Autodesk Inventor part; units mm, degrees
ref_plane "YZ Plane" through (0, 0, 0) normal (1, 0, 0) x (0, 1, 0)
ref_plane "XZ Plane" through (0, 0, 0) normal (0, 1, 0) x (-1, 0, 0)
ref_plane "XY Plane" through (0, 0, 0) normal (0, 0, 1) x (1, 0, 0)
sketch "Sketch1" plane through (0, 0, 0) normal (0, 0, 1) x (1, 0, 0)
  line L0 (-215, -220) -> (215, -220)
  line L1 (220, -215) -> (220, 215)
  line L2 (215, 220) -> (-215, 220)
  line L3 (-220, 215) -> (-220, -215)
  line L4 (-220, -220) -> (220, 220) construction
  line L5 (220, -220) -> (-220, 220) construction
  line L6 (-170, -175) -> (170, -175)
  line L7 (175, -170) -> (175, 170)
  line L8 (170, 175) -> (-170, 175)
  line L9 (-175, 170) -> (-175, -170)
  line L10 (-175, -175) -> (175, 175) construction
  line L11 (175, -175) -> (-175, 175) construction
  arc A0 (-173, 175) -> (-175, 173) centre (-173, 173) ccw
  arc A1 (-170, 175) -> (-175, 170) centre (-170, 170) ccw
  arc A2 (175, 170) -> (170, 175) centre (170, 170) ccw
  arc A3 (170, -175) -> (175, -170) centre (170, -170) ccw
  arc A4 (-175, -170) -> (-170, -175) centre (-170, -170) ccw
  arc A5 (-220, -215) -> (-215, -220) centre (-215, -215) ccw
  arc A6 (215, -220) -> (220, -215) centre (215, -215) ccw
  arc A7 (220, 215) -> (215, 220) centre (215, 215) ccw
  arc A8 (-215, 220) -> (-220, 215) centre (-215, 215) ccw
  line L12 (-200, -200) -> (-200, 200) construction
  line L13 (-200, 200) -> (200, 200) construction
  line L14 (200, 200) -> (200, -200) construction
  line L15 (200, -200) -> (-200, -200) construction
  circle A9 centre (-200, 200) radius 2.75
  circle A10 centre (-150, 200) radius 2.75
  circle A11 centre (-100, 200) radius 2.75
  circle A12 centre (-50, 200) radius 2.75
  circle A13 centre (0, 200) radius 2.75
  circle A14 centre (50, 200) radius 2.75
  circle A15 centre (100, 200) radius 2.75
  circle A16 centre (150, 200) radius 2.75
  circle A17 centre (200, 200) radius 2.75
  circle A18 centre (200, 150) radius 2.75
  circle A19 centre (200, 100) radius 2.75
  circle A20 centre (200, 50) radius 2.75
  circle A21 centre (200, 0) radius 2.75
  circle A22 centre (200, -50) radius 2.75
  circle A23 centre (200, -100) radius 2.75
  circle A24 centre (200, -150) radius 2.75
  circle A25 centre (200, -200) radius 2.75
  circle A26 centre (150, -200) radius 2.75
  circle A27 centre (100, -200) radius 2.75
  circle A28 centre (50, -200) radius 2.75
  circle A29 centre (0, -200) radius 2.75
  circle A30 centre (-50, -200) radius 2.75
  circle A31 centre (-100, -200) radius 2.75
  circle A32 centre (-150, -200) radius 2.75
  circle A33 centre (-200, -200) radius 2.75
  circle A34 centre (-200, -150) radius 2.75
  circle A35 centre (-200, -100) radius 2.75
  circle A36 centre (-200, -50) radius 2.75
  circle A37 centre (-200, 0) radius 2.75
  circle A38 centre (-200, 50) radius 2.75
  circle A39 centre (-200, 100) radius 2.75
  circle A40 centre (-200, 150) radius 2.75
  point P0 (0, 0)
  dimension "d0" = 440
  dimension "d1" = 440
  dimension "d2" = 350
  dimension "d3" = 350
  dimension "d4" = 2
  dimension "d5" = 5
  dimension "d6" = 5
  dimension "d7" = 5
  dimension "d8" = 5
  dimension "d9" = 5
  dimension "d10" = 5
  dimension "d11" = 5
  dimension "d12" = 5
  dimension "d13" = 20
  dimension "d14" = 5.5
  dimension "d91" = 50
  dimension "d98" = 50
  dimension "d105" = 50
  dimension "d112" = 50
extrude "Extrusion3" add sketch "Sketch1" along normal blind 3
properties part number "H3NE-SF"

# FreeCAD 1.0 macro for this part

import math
import FreeCAD as App
import Part
import Sketcher

V = App.Vector
Q = App.Units.Quantity

doc = App.newDocument("Part")
params = doc.addObject("Spreadsheet::Sheet", "Params")
for row, (alias, value) in enumerate([
    ("sketch1_radius", "5 mm"),
    ("sketch1_diameter", "5.5 mm"),
    ("pad1_length", "3 mm"),
], start=1):
    params.set(f"A{row}", alias)
    params.set(f"B{row}", "=" + value)
    params.setAlias(f"B{row}", alias)

body = doc.addObject("PartDesign::Body", "Body")

sketch1 = body.newObject("Sketcher::SketchObject", "Sketch")
sketch1.AttachmentSupport = (doc.getObject("XY_Plane"), [""])
sketch1.MapMode = "FlatFace"
sketch1.addGeometry(Part.ArcOfCircle(Part.Circle(V(-215, -215, 0), V(0, 0, 1), 5), math.radians(180), math.radians(270)), False)
sketch1.addGeometry(Part.LineSegment(V(-215, -220, 0), V(215, -220, 0)), False)
sketch1.addGeometry(Part.ArcOfCircle(Part.Circle(V(215, -215, 0), V(0, 0, 1), 5), math.radians(-90), math.radians(0)), False)
sketch1.addGeometry(Part.LineSegment(V(220, -215, 0), V(220, 215, 0)), False)
sketch1.addGeometry(Part.ArcOfCircle(Part.Circle(V(215, 215, 0), V(0, 0, 1), 5), math.radians(0), math.radians(90)), False)
sketch1.addGeometry(Part.LineSegment(V(215, 220, 0), V(-215, 220, 0)), False)
sketch1.addGeometry(Part.ArcOfCircle(Part.Circle(V(-215, 215, 0), V(0, 0, 1), 5), math.radians(90), math.radians(180)), False)
sketch1.addGeometry(Part.LineSegment(V(-220, 215, 0), V(-220, -215, 0)), False)
sketch1.addGeometry(Part.Circle(V(-200, -200, 0), V(0, 0, 1), 2.75), False)
sketch1.addGeometry(Part.Circle(V(-150, -200, 0), V(0, 0, 1), 2.75), False)
sketch1.addGeometry(Part.Circle(V(-200, -150, 0), V(0, 0, 1), 2.75), False)
sketch1.addGeometry(Part.Circle(V(-100, -200, 0), V(0, 0, 1), 2.75), False)
sketch1.addGeometry(Part.Circle(V(-50, -200, 0), V(0, 0, 1), 2.75), False)
sketch1.addGeometry(Part.Circle(V(-200, -100, 0), V(0, 0, 1), 2.75), False)
sketch1.addGeometry(Part.Circle(V(-200, -50, 0), V(0, 0, 1), 2.75), False)
sketch1.addGeometry(Part.Circle(V(0, -200, 0), V(0, 0, 1), 2.75), False)
sketch1.addGeometry(Part.Circle(V(50, -200, 0), V(0, 0, 1), 2.75), False)
sketch1.addGeometry(Part.Circle(V(100, -200, 0), V(0, 0, 1), 2.75), False)
sketch1.addGeometry(Part.Circle(V(150, -200, 0), V(0, 0, 1), 2.75), False)
sketch1.addGeometry(Part.Circle(V(200, -200, 0), V(0, 0, 1), 2.75), False)
sketch1.addGeometry(Part.Circle(V(200, -150, 0), V(0, 0, 1), 2.75), False)
sketch1.addGeometry(Part.Circle(V(200, -100, 0), V(0, 0, 1), 2.75), False)
sketch1.addGeometry(Part.Circle(V(200, -50, 0), V(0, 0, 1), 2.75), False)
sketch1.addGeometry(Part.Circle(V(-200, 0, 0), V(0, 0, 1), 2.75), False)
sketch1.addGeometry(Part.Circle(V(-200, 50, 0), V(0, 0, 1), 2.75), False)
sketch1.addGeometry(Part.Circle(V(-200, 100, 0), V(0, 0, 1), 2.75), False)
sketch1.addGeometry(Part.Circle(V(-200, 150, 0), V(0, 0, 1), 2.75), False)
sketch1.addGeometry(Part.Circle(V(-200, 200, 0), V(0, 0, 1), 2.75), False)
sketch1.addGeometry(Part.Circle(V(-150, 200, 0), V(0, 0, 1), 2.75), False)
sketch1.addGeometry(Part.Circle(V(-100, 200, 0), V(0, 0, 1), 2.75), False)
sketch1.addGeometry(Part.Circle(V(-50, 200, 0), V(0, 0, 1), 2.75), False)
sketch1.addGeometry(Part.LineSegment(V(170, -175, 0), V(-170, -175, 0)), False)
sketch1.addGeometry(Part.ArcOfCircle(Part.Circle(V(-170, -170, 0), V(0, 0, 1), 5), math.radians(180), math.radians(270)), False)
sketch1.addGeometry(Part.LineSegment(V(-175, -170, 0), V(-175, 170, 0)), False)
sketch1.addGeometry(Part.ArcOfCircle(Part.Circle(V(-170, 170, 0), V(0, 0, 1), 5), math.radians(90), math.radians(180)), False)
sketch1.addGeometry(Part.LineSegment(V(-170, 175, 0), V(170, 175, 0)), False)
sketch1.addGeometry(Part.ArcOfCircle(Part.Circle(V(170, 170, 0), V(0, 0, 1), 5), math.radians(0), math.radians(90)), False)
sketch1.addGeometry(Part.LineSegment(V(175, 170, 0), V(175, -170, 0)), False)
sketch1.addGeometry(Part.ArcOfCircle(Part.Circle(V(170, -170, 0), V(0, 0, 1), 5), math.radians(-90), math.radians(0)), False)
sketch1.addGeometry(Part.Circle(V(200, 0, 0), V(0, 0, 1), 2.75), False)
sketch1.addGeometry(Part.Circle(V(200, 50, 0), V(0, 0, 1), 2.75), False)
sketch1.addGeometry(Part.Circle(V(200, 100, 0), V(0, 0, 1), 2.75), False)
sketch1.addGeometry(Part.Circle(V(0, 200, 0), V(0, 0, 1), 2.75), False)
sketch1.addGeometry(Part.Circle(V(50, 200, 0), V(0, 0, 1), 2.75), False)
sketch1.addGeometry(Part.Circle(V(100, 200, 0), V(0, 0, 1), 2.75), False)
sketch1.addGeometry(Part.Circle(V(200, 150, 0), V(0, 0, 1), 2.75), False)
sketch1.addGeometry(Part.Circle(V(150, 200, 0), V(0, 0, 1), 2.75), False)
sketch1.addGeometry(Part.Circle(V(200, 200, 0), V(0, 0, 1), 2.75), False)
sketch1.addConstraint(Sketcher.Constraint("Tangent", 0, 2, 1, 1))
sketch1.addConstraint(Sketcher.Constraint("Tangent", 1, 2, 2, 1))
sketch1.addConstraint(Sketcher.Constraint("Tangent", 2, 2, 3, 1))
sketch1.addConstraint(Sketcher.Constraint("Tangent", 3, 2, 4, 1))
sketch1.addConstraint(Sketcher.Constraint("Tangent", 4, 2, 5, 1))
sketch1.addConstraint(Sketcher.Constraint("Tangent", 5, 2, 6, 1))
sketch1.addConstraint(Sketcher.Constraint("Tangent", 6, 2, 7, 1))
sketch1.addConstraint(Sketcher.Constraint("Tangent", 7, 2, 0, 1))
sketch1.addConstraint(Sketcher.Constraint("Tangent", 31, 2, 32, 2))
sketch1.addConstraint(Sketcher.Constraint("Tangent", 32, 1, 33, 1))
sketch1.addConstraint(Sketcher.Constraint("Tangent", 33, 2, 34, 2))
sketch1.addConstraint(Sketcher.Constraint("Tangent", 34, 1, 35, 1))
sketch1.addConstraint(Sketcher.Constraint("Tangent", 35, 2, 36, 2))
sketch1.addConstraint(Sketcher.Constraint("Tangent", 36, 1, 37, 1))
sketch1.addConstraint(Sketcher.Constraint("Tangent", 37, 2, 38, 2))
sketch1.addConstraint(Sketcher.Constraint("Tangent", 38, 1, 31, 1))
sketch1.addConstraint(Sketcher.Constraint("Horizontal", 1))
sketch1.addConstraint(Sketcher.Constraint("Vertical", 3))
sketch1.addConstraint(Sketcher.Constraint("Horizontal", 5))
sketch1.addConstraint(Sketcher.Constraint("Vertical", 7))
sketch1.addConstraint(Sketcher.Constraint("Horizontal", 31))
sketch1.addConstraint(Sketcher.Constraint("Vertical", 33))
sketch1.addConstraint(Sketcher.Constraint("Horizontal", 35))
sketch1.addConstraint(Sketcher.Constraint("Vertical", 37))
sketch1.addConstraint(Sketcher.Constraint("Equal", 0, 2))
sketch1.addConstraint(Sketcher.Constraint("Equal", 2, 4))
sketch1.addConstraint(Sketcher.Constraint("Equal", 4, 6))
sketch1.addConstraint(Sketcher.Constraint("Equal", 8, 9))
sketch1.addConstraint(Sketcher.Constraint("Equal", 9, 10))
sketch1.addConstraint(Sketcher.Constraint("Equal", 10, 11))
sketch1.addConstraint(Sketcher.Constraint("Equal", 11, 12))
sketch1.addConstraint(Sketcher.Constraint("Equal", 12, 13))
sketch1.addConstraint(Sketcher.Constraint("Equal", 13, 14))
sketch1.addConstraint(Sketcher.Constraint("Equal", 14, 15))
sketch1.addConstraint(Sketcher.Constraint("Equal", 15, 16))
sketch1.addConstraint(Sketcher.Constraint("Equal", 16, 17))
sketch1.addConstraint(Sketcher.Constraint("Equal", 17, 18))
sketch1.addConstraint(Sketcher.Constraint("Equal", 18, 19))
sketch1.addConstraint(Sketcher.Constraint("Equal", 19, 20))
sketch1.addConstraint(Sketcher.Constraint("Equal", 20, 21))
sketch1.addConstraint(Sketcher.Constraint("Equal", 21, 22))
sketch1.addConstraint(Sketcher.Constraint("Equal", 22, 23))
sketch1.addConstraint(Sketcher.Constraint("Equal", 23, 24))
sketch1.addConstraint(Sketcher.Constraint("Equal", 24, 25))
sketch1.addConstraint(Sketcher.Constraint("Equal", 25, 26))
sketch1.addConstraint(Sketcher.Constraint("Equal", 26, 27))
sketch1.addConstraint(Sketcher.Constraint("Equal", 27, 28))
sketch1.addConstraint(Sketcher.Constraint("Equal", 28, 29))
sketch1.addConstraint(Sketcher.Constraint("Equal", 29, 30))
sketch1.addConstraint(Sketcher.Constraint("Equal", 6, 32))
sketch1.addConstraint(Sketcher.Constraint("Equal", 32, 34))
sketch1.addConstraint(Sketcher.Constraint("Equal", 34, 36))
sketch1.addConstraint(Sketcher.Constraint("Equal", 36, 38))
sketch1.addConstraint(Sketcher.Constraint("Equal", 30, 39))
sketch1.addConstraint(Sketcher.Constraint("Equal", 39, 40))
sketch1.addConstraint(Sketcher.Constraint("Equal", 40, 41))
sketch1.addConstraint(Sketcher.Constraint("Equal", 41, 42))
sketch1.addConstraint(Sketcher.Constraint("Equal", 42, 43))
sketch1.addConstraint(Sketcher.Constraint("Equal", 43, 44))
sketch1.addConstraint(Sketcher.Constraint("Equal", 44, 45))
sketch1.addConstraint(Sketcher.Constraint("Equal", 45, 46))
sketch1.addConstraint(Sketcher.Constraint("Equal", 46, 47))
sketch1.addConstraint(Sketcher.Constraint("Symmetric", 0, 3, 4, 3, -1, 1))
sketch1.addConstraint(Sketcher.Constraint("Symmetric", 22, 3, 24, 3, -1, 1))
sketch1.addConstraint(Sketcher.Constraint("Symmetric", 21, 3, 25, 3, -1, 1))
sketch1.addConstraint(Sketcher.Constraint("Symmetric", 20, 3, 26, 3, -1, 1))
sketch1.addConstraint(Sketcher.Constraint("Symmetric", 19, 3, 27, 3, -1, 1))
sketch1.addConstraint(Sketcher.Constraint("Symmetric", 18, 3, 28, 3, -1, 1))
sketch1.addConstraint(Sketcher.Constraint("Symmetric", 17, 3, 29, 3, -1, 1))
sketch1.addConstraint(Sketcher.Constraint("Symmetric", 16, 3, 30, 3, -1, 1))
sketch1.addConstraint(Sketcher.Constraint("Symmetric", 32, 3, 36, 3, -1, 1))
sketch1.addConstraint(Sketcher.Constraint("Symmetric", 23, 3, 39, 3, -1, 1))
sketch1.addConstraint(Sketcher.Constraint("Symmetric", 14, 3, 40, 3, -1, 1))
sketch1.addConstraint(Sketcher.Constraint("Symmetric", 13, 3, 41, 3, -1, 1))
sketch1.addConstraint(Sketcher.Constraint("Symmetric", 15, 3, 42, 3, -1, 1))
sketch1.addConstraint(Sketcher.Constraint("Symmetric", 12, 3, 43, 3, -1, 1))
sketch1.addConstraint(Sketcher.Constraint("Symmetric", 11, 3, 44, 3, -1, 1))
sketch1.addConstraint(Sketcher.Constraint("Symmetric", 10, 3, 45, 3, -1, 1))
sketch1.addConstraint(Sketcher.Constraint("Symmetric", 9, 3, 46, 3, -1, 1))
sketch1.addConstraint(Sketcher.Constraint("Symmetric", 8, 3, 47, 3, -1, 1))
sketch1.addConstraint(Sketcher.Constraint("Symmetric", 12, 3, 16, 3, -2))
sketch1.addConstraint(Sketcher.Constraint("Symmetric", 11, 3, 17, 3, -2))
sketch1.addConstraint(Sketcher.Constraint("Symmetric", 9, 3, 18, 3, -2))
sketch1.addConstraint(Sketcher.Constraint("Symmetric", 8, 3, 19, 3, -2))
sketch1.addConstraint(Sketcher.Constraint("Symmetric", 10, 3, 20, 3, -2))
sketch1.addConstraint(Sketcher.Constraint("Symmetric", 13, 3, 21, 3, -2))
sketch1.addConstraint(Sketcher.Constraint("Symmetric", 14, 3, 22, 3, -2))
sketch1.addConstraint(Sketcher.Constraint("PointOnObject", 15, 3, -2))
sketch1.addConstraint(Sketcher.Constraint("PointOnObject", 23, 3, -1))
sketch1.addConstraint(Sketcher.Constraint("Horizontal", 8, 3, 9, 3))
sketch1.addConstraint(Sketcher.Constraint("Horizontal", 9, 3, 11, 3))
sketch1.addConstraint(Sketcher.Constraint("Horizontal", 11, 3, 12, 3))
sketch1.addConstraint(Sketcher.Constraint("Horizontal", 12, 3, 15, 3))
sketch1.addConstraint(Sketcher.Constraint("Vertical", 8, 3, 10, 3))
sketch1.addConstraint(Sketcher.Constraint("Vertical", 10, 3, 13, 3))
sketch1.addConstraint(Sketcher.Constraint("Vertical", 13, 3, 14, 3))
sketch1.addConstraint(Sketcher.Constraint("Vertical", 14, 3, 23, 3))
sketch1.addConstraint(Sketcher.Constraint("Equal", 5, 3))
sketch1.addConstraint(Sketcher.Constraint("Equal", 35, 33))
sketch1.addConstraint(Sketcher.Constraint("Radius", 0, Q("5 mm")))
sketch1.addConstraint(Sketcher.Constraint("Diameter", 8, Q("5.5 mm")))
sketch1.addConstraint(Sketcher.Constraint("DistanceX", 12, 3, -1, 1, Q("50 mm")))
sketch1.addConstraint(Sketcher.Constraint("DistanceY", 14, 3, -1, 1, Q("50 mm")))
sketch1.addConstraint(Sketcher.Constraint("DistanceX", 8, 3, 9, 3, Q("50 mm")))
sketch1.addConstraint(Sketcher.Constraint("DistanceY", 8, 3, 10, 3, Q("50 mm")))
sketch1.addConstraint(Sketcher.Constraint("DistanceX", 9, 3, 11, 3, Q("50 mm")))
sketch1.addConstraint(Sketcher.Constraint("DistanceX", 11, 3, 12, 3, Q("50 mm")))
sketch1.addConstraint(Sketcher.Constraint("DistanceY", 10, 3, 13, 3, Q("50 mm")))
sketch1.addConstraint(Sketcher.Constraint("DistanceY", 13, 3, 14, 3, Q("50 mm")))
sketch1.addConstraint(Sketcher.Constraint("DistanceX", 32, 3, 9, 3, Q("20 mm")))
sketch1.addConstraint(Sketcher.Constraint("DistanceY", 0, 2, 8, 3, Q("20 mm")))
sketch1.setExpression("Constraints[99]", "Params.sketch1_radius")
sketch1.setExpression("Constraints[100]", "Params.sketch1_diameter")
pad1 = body.newObject("PartDesign::Pad", "Pad")
pad1.Profile = sketch1
pad1.setExpression("Length", "Params.pad1_length")

doc.recompute()
